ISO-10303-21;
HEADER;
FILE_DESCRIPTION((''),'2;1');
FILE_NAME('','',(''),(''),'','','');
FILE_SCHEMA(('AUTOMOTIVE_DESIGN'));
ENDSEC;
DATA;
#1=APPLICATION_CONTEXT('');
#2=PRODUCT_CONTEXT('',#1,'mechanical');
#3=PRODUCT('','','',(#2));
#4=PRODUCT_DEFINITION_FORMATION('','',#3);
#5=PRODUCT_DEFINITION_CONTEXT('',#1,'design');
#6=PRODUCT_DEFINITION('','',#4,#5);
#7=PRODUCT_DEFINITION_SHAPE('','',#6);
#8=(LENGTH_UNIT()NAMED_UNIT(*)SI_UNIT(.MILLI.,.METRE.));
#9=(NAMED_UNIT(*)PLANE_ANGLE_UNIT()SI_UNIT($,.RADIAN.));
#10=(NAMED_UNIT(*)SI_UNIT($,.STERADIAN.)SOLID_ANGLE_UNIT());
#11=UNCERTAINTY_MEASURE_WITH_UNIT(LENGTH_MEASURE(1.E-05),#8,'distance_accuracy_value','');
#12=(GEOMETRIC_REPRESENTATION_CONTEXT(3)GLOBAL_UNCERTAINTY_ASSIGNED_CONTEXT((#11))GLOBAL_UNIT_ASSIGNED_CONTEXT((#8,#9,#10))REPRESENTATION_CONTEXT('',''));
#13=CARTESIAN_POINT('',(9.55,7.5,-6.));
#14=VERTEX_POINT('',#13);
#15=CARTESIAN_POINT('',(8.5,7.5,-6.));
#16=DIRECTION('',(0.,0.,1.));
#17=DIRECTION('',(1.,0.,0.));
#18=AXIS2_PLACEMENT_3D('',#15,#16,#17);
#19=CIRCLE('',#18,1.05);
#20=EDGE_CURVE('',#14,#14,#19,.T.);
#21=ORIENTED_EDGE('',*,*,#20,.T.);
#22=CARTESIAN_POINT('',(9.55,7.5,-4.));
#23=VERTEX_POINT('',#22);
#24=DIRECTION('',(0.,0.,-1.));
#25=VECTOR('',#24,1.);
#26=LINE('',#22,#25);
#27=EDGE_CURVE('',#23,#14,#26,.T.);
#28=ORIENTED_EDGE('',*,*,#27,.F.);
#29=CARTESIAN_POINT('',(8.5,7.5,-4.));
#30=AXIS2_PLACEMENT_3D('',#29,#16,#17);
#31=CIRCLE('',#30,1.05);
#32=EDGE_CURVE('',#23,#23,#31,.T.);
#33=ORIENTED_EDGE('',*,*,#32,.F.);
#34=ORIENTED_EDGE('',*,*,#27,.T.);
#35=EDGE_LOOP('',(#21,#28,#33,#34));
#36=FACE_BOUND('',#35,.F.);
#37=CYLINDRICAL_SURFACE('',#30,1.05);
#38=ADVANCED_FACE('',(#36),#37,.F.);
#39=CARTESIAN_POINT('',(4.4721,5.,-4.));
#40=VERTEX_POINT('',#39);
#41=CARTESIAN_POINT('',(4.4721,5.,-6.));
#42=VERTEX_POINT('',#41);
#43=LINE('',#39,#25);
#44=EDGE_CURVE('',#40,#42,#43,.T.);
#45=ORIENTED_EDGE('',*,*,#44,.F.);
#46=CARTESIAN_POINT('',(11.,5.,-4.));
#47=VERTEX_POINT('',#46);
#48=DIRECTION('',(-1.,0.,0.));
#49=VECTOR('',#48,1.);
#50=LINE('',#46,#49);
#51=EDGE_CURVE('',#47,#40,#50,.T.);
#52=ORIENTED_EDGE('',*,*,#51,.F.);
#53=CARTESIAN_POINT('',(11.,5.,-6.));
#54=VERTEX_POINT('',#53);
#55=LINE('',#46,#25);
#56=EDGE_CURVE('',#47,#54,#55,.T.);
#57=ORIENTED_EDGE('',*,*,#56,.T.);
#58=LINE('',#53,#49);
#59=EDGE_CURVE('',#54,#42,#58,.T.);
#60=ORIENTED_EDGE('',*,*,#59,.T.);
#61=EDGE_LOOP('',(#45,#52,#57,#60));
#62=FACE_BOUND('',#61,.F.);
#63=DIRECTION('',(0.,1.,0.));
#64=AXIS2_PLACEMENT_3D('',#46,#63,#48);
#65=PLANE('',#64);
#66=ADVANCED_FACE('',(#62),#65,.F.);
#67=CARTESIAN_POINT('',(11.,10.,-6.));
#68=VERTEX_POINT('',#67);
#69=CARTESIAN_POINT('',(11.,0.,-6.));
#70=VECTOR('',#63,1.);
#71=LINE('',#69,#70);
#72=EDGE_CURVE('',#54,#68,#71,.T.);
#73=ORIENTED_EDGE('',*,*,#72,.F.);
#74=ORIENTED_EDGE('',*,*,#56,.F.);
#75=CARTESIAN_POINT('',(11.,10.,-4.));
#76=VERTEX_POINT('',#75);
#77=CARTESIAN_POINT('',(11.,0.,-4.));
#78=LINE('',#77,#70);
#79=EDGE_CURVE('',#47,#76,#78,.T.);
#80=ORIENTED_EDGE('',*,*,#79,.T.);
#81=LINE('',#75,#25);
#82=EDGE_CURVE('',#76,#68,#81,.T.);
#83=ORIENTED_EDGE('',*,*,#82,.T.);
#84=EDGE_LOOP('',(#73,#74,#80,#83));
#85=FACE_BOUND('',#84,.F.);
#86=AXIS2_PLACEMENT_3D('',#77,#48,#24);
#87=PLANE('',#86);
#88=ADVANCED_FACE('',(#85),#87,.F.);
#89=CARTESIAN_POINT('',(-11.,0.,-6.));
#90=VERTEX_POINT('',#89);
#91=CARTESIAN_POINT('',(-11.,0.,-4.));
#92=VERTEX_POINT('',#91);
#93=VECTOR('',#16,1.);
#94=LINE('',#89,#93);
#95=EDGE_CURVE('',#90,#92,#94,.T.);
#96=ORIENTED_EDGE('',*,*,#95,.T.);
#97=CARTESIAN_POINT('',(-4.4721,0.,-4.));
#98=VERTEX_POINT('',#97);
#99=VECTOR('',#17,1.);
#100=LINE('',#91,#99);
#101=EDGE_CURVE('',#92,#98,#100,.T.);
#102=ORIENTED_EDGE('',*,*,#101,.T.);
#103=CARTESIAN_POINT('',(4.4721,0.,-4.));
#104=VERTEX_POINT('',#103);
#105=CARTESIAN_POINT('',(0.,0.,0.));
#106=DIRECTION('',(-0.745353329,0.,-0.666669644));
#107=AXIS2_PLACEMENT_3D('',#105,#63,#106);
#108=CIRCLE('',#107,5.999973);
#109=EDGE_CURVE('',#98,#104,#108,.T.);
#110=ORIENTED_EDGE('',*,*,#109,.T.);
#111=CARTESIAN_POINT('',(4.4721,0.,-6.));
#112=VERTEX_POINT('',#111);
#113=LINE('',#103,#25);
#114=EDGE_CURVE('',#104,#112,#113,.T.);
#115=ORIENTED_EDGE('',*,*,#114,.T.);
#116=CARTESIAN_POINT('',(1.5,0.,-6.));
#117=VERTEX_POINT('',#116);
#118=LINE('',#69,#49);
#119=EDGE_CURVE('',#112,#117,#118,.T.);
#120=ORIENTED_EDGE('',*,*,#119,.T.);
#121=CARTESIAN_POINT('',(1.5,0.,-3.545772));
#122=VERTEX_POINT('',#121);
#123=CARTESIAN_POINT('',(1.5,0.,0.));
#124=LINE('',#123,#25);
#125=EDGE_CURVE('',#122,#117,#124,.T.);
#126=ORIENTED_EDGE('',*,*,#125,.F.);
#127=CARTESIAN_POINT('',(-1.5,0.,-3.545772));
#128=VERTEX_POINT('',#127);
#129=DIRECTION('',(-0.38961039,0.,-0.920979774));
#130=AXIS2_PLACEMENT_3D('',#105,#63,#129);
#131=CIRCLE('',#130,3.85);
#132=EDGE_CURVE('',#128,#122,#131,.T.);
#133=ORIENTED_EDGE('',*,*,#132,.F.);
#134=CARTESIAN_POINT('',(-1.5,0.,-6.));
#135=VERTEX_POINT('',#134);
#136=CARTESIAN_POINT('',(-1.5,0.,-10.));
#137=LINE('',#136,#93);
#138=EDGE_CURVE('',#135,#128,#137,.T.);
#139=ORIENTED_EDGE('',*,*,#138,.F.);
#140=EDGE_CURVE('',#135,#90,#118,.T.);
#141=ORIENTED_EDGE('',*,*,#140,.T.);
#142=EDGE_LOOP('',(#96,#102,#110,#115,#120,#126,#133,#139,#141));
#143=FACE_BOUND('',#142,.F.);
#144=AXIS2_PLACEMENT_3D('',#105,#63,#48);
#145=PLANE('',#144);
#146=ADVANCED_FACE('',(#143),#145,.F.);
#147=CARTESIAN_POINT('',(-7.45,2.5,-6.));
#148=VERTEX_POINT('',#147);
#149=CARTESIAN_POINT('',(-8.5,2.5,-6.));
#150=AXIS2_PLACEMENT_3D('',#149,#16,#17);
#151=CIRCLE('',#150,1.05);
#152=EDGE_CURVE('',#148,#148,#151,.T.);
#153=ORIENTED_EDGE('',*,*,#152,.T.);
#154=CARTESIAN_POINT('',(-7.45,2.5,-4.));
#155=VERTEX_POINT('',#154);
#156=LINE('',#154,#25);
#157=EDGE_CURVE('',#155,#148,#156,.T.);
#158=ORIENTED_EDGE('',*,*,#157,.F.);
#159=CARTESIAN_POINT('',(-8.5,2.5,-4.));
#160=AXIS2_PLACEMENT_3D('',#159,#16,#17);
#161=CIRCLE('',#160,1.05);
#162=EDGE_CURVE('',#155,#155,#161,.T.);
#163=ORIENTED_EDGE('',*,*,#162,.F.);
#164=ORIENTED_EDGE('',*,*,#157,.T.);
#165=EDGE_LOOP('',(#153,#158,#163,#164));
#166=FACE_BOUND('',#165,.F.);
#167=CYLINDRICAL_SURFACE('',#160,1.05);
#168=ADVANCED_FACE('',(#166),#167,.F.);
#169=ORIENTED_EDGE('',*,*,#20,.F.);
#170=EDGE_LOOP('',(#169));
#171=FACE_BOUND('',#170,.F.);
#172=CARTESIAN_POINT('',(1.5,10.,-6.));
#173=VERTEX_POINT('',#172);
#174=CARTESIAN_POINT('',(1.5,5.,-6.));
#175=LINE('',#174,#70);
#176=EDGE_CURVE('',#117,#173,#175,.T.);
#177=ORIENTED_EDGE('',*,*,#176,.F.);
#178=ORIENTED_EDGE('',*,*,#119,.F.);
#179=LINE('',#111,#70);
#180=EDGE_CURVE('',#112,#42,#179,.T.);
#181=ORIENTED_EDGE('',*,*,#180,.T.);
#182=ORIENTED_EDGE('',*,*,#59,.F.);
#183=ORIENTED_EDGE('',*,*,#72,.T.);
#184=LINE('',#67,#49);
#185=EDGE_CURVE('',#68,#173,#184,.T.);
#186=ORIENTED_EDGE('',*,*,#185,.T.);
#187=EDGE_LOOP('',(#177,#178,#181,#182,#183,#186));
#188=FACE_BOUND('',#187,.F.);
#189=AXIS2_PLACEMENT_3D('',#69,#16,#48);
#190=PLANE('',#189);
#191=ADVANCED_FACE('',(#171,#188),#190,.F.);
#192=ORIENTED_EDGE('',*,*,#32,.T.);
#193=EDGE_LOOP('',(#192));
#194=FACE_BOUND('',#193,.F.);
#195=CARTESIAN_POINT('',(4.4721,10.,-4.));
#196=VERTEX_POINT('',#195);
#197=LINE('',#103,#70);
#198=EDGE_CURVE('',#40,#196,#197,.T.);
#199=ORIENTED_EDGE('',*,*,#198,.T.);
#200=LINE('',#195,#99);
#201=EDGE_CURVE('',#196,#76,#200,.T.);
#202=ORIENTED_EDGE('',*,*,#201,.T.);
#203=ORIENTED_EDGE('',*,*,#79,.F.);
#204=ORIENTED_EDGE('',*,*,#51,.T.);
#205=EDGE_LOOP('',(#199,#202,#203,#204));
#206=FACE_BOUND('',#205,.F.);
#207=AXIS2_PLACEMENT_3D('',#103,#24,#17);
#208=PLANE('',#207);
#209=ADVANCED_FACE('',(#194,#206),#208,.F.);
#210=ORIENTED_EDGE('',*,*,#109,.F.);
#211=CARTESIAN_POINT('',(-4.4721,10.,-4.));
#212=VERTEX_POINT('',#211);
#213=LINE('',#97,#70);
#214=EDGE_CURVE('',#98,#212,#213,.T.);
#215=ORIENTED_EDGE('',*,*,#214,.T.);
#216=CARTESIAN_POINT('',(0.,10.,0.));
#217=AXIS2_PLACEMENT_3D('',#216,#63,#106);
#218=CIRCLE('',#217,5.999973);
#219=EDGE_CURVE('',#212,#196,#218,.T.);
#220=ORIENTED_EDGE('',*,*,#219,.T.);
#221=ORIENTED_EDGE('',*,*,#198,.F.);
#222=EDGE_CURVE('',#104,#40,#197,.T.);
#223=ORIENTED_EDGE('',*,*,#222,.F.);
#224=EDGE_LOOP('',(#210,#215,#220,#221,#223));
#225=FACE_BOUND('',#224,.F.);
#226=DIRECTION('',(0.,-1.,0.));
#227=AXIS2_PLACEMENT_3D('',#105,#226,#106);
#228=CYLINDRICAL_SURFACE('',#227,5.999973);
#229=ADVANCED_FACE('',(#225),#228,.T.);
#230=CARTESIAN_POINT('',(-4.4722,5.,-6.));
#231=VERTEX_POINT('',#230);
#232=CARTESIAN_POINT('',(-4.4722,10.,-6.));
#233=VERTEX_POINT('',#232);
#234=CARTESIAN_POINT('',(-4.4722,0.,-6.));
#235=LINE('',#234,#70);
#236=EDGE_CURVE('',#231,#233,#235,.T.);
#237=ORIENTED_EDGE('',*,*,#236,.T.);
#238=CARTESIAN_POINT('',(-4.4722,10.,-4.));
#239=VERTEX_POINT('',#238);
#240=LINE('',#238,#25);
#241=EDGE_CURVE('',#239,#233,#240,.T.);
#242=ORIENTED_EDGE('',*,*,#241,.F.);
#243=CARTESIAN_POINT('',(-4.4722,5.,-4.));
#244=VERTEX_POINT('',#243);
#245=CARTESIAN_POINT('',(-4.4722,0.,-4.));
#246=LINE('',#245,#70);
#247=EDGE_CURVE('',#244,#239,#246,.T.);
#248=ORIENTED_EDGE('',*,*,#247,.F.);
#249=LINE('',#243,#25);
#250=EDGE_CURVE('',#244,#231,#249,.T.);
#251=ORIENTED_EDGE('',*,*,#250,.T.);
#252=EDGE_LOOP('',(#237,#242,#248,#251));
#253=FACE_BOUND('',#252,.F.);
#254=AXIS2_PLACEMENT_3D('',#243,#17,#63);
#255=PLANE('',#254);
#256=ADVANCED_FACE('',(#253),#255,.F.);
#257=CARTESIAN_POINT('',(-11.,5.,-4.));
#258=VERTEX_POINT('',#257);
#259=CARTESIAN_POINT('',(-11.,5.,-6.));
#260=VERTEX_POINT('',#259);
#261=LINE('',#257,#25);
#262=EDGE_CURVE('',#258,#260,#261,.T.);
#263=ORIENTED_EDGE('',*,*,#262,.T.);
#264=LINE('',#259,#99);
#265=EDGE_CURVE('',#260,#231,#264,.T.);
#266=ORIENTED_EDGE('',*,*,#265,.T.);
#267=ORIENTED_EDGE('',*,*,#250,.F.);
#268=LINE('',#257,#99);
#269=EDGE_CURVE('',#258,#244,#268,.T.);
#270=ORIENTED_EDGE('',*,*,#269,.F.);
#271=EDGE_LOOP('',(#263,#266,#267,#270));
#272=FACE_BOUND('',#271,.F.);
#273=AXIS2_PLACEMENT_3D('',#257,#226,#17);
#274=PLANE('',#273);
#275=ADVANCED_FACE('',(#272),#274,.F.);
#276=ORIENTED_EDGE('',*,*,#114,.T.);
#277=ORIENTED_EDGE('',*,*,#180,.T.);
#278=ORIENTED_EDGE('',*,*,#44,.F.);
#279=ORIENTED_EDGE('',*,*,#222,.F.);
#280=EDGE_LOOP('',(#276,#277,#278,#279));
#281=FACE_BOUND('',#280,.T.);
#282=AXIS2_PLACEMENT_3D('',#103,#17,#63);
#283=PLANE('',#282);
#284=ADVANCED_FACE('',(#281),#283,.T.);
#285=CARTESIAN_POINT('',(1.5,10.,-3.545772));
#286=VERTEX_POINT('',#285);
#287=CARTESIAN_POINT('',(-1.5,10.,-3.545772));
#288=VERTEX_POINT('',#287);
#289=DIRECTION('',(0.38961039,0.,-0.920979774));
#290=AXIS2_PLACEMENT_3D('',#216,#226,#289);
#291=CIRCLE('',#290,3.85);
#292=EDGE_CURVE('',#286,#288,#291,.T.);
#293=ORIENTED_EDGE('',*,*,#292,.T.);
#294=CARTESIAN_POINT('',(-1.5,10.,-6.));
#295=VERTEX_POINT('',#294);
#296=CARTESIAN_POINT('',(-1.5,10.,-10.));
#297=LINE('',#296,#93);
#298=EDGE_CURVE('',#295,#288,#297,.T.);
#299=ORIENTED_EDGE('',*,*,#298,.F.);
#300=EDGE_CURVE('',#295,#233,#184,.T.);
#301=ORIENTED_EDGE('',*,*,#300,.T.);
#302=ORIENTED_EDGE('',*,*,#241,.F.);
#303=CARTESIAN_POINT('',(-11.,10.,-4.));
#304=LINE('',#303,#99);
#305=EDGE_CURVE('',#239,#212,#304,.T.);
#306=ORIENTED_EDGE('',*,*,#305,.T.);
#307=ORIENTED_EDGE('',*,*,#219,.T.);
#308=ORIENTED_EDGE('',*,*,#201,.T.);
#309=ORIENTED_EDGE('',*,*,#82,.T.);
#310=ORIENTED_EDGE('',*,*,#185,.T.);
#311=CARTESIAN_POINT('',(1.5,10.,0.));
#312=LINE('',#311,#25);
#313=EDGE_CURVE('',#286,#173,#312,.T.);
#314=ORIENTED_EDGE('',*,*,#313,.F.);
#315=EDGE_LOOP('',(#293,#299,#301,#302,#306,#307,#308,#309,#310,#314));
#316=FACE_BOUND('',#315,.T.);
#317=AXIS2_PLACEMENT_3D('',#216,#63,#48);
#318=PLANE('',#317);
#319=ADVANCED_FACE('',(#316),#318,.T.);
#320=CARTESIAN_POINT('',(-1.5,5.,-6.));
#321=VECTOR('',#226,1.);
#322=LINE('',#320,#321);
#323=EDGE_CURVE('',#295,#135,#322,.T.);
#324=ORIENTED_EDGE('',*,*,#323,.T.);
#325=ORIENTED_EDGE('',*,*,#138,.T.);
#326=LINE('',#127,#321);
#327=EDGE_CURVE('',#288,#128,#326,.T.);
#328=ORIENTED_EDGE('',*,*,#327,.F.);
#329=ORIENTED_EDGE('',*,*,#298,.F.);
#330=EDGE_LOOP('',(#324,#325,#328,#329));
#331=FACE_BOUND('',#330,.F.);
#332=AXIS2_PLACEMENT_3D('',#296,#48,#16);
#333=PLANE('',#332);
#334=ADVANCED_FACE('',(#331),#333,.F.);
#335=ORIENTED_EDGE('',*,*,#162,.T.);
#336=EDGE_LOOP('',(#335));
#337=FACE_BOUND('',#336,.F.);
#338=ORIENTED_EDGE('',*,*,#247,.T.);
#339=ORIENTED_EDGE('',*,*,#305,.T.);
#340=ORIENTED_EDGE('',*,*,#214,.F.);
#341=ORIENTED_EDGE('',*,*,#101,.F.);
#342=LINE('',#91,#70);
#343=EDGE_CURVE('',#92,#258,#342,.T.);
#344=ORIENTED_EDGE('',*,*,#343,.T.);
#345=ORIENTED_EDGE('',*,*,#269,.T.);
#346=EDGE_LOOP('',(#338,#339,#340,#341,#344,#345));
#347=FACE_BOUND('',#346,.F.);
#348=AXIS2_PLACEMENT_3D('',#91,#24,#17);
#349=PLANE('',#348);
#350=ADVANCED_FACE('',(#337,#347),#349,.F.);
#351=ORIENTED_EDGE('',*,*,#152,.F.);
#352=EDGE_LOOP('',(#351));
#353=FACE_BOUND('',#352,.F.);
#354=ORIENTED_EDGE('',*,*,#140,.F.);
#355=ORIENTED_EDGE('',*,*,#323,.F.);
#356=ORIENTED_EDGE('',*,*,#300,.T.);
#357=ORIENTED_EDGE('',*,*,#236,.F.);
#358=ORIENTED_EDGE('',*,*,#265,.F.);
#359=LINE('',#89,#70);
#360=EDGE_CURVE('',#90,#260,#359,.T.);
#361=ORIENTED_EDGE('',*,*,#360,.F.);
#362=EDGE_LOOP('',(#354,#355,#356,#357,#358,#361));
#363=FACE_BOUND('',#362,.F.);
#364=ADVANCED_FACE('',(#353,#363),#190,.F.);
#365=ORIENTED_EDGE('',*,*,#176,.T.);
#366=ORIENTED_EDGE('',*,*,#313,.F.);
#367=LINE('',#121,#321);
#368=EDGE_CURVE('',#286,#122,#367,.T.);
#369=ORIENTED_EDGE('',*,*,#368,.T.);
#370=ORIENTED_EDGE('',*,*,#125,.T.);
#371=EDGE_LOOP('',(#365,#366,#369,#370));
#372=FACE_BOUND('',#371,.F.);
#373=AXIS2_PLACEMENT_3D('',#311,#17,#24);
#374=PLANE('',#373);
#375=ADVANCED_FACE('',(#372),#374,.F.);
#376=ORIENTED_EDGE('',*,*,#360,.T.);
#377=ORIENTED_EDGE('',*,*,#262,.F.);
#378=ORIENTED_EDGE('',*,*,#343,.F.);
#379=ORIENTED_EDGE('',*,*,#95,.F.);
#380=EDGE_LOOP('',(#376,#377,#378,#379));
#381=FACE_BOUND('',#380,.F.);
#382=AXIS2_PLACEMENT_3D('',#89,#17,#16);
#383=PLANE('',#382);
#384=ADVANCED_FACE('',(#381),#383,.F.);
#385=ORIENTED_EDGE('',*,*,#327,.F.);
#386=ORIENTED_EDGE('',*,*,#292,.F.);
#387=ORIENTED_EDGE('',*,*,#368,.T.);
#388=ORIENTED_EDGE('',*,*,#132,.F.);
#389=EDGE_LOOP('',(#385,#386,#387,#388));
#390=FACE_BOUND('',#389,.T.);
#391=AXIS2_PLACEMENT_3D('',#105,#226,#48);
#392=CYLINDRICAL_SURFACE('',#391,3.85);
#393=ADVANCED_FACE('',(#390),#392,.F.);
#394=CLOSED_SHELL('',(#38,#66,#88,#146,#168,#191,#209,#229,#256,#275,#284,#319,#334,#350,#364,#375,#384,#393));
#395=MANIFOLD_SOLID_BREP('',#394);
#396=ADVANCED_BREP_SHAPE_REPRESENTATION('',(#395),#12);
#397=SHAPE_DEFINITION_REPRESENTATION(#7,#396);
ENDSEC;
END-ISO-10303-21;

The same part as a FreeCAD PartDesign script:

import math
import FreeCAD as App
import Part
import Sketcher

V = App.Vector
Q = App.Units.Quantity


def add_polygon(sketch, points):
    """Adds a closed chain of lines whose ends are joined by coincident constraints."""
    first, n = sketch.GeometryCount, len(points)
    for a, b in zip(points, points[1:] + points[:1]):
        sketch.addGeometry(Part.LineSegment(App.Vector(*a, 0), App.Vector(*b, 0)), False)
    for i in range(n):
        sketch.addConstraint(Sketcher.Constraint("Coincident", first + i, 2, first + (i + 1) % n, 1))

doc = App.newDocument("Part")
body = doc.addObject("PartDesign::Body", "Body")

sketch1 = body.newObject("Sketcher::SketchObject", "Sketch")
sketch1.AttachmentSupport = (doc.getObject("XZ_Plane"), [""])
sketch1.MapMode = "FlatFace"
sketch1.addGeometry(Part.LineSegment(V(-11, -6, 0), V(-11, -4, 0)), False)
sketch1.addGeometry(Part.LineSegment(V(-11, -4, 0), V(-4.5, -4, 0)), False)
sketch1.addGeometry(Part.ArcOfCircle(Part.Circle(V(0, 0, 0), V(0, 0, 1), 6), math.radians(-42), math.radians(222)), False)
sketch1.addGeometry(Part.LineSegment(V(4.5, -4, 0), V(11, -4, 0)), False)
sketch1.addGeometry(Part.LineSegment(V(11, -4, 0), V(11, -6, 0)), False)
sketch1.addGeometry(Part.LineSegment(V(11, -6, 0), V(-11, -6, 0)), False)
sketch1.addGeometry(Part.Circle(V(0, 0, 0), V(0, 0, 1), 3.9), False)
sketch1.addConstraint(Sketcher.Constraint("Coincident", 0, 2, 1, 1))
sketch1.addConstraint(Sketcher.Constraint("Coincident", 1, 2, 2, 2))
sketch1.addConstraint(Sketcher.Constraint("Coincident", 2, 1, 3, 1))
sketch1.addConstraint(Sketcher.Constraint("Coincident", 3, 2, 4, 1))
sketch1.addConstraint(Sketcher.Constraint("Coincident", 4, 2, 5, 1))
sketch1.addConstraint(Sketcher.Constraint("Coincident", 5, 2, 0, 1))
sketch1.addConstraint(Sketcher.Constraint("Vertical", 0))
sketch1.addConstraint(Sketcher.Constraint("Horizontal", 1))
sketch1.addConstraint(Sketcher.Constraint("Horizontal", 3))
sketch1.addConstraint(Sketcher.Constraint("Vertical", 4))
sketch1.addConstraint(Sketcher.Constraint("Horizontal", 5))
sketch1.addConstraint(Sketcher.Constraint("Coincident", 2, 3, -1, 1))
sketch1.addConstraint(Sketcher.Constraint("Coincident", 6, 3, -1, 1))
sketch1.addConstraint(Sketcher.Constraint("Symmetric", 0, 2, 3, 2, -2))
sketch1.addConstraint(Sketcher.Constraint("Radius", 2, Q("6 mm")))
sketch1.addConstraint(Sketcher.Constraint("Diameter", 6, Q("7.7 mm")))
sketch1.addConstraint(Sketcher.Constraint("DistanceX", 5, 2, 5, 1, Q("22 mm")))
sketch1.addConstraint(Sketcher.Constraint("DistanceY", 0, 1, 0, 2, Q("2 mm")))
sketch1.addConstraint(Sketcher.Constraint("DistanceY", 4, 2, -1, 1, Q("6 mm")))
pad1 = body.newObject("PartDesign::Pad", "Pad")
pad1.Profile = sketch1
pad1.Length = 10
pad1.Reversed = True

sketch2 = body.newObject("Sketcher::SketchObject", "Sketch001")
sketch2.AttachmentSupport = (doc.getObject("XY_Plane"), [""])
sketch2.MapMode = "FlatFace"
sketch2.AttachmentOffset = App.Placement(V(0, 0, -4), App.Rotation())
sketch2.addGeometry(Part.Circle(V(8.5, 7.5, 0), V(0, 0, 1), 1.1), False)
sketch2.addGeometry(Part.Circle(V(-8.5, 2.5, 0), V(0, 0, 1), 1.1), False)
sketch2.addConstraint(Sketcher.Constraint("Equal", 0, 1))
sketch2.addConstraint(Sketcher.Constraint("Diameter", 0, Q("2.1 mm")))
sketch2.addConstraint(Sketcher.Constraint("DistanceX", 1, 3, 0, 3, Q("17 mm")))
sketch2.addConstraint(Sketcher.Constraint("DistanceY", -1, 1, 1, 3, Q("2.5 mm")))
sketch2.addConstraint(Sketcher.Constraint("DistanceY", 1, 3, 0, 3, Q("5 mm")))
sketch2.addConstraint(Sketcher.Constraint("DistanceX", -1, 1, 0, 3, Q("8.5 mm")))
pocket1 = body.newObject("PartDesign::Pocket", "Pocket")
pocket1.Profile = sketch2
pocket1.Length = 10

sketch3 = body.newObject("Sketcher::SketchObject", "Sketch002")
sketch3.AttachmentSupport = (doc.getObject("XZ_Plane"), [""])
sketch3.MapMode = "FlatFace"
sketch3.AttachmentOffset = App.Placement(V(0, 0, -10), App.Rotation())
add_polygon(sketch3, [(-1.5, -10), (-1.5, 0), (1.5, 0), (1.5, -10)])
sketch3.addConstraint(Sketcher.Constraint("Vertical", 0))
sketch3.addConstraint(Sketcher.Constraint("Horizontal", 1))
sketch3.addConstraint(Sketcher.Constraint("Vertical", 2))
sketch3.addConstraint(Sketcher.Constraint("Horizontal", 3))
sketch3.addConstraint(Sketcher.Constraint("Symmetric", 0, 2, 1, 2, -1, 1))
sketch3.addConstraint(Sketcher.Constraint("DistanceX", 1, 1, 1, 2, Q("3 mm")))
sketch3.addConstraint(Sketcher.Constraint("DistanceY", 0, 1, 0, 2, Q("10 mm")))
pocket2 = body.newObject("PartDesign::Pocket", "Pocket001")
pocket2.Profile = sketch3
pocket2.Length = 10
pocket2.Reversed = True

sketch4 = body.newObject("Sketcher::SketchObject", "Sketch003")
sketch4.AttachmentSupport = (doc.getObject("XY_Plane"), [""])
sketch4.MapMode = "FlatFace"
sketch4.AttachmentOffset = App.Placement(V(0, 0, -4), App.Rotation())
add_polygon(sketch4, [(4, 5), (4, 0), (11, 0), (11, 5)])
sketch4.addConstraint(Sketcher.Constraint("Vertical", 0))
sketch4.addConstraint(Sketcher.Constraint("Horizontal", 1))
sketch4.addConstraint(Sketcher.Constraint("Vertical", 2))
sketch4.addConstraint(Sketcher.Constraint("Horizontal", 3))
sketch4.addConstraint(Sketcher.Constraint("PointOnObject", 0, 2, -1))
sketch4.addConstraint(Sketcher.Constraint("DistanceY", 0, 2, 0, 1, Q("5 mm")))
sketch4.addConstraint(Sketcher.Constraint("DistanceX", -1, 1, 1, 2, Q("11 mm")))
sketch4.addConstraint(Sketcher.Constraint("DistanceX", 1, 1, 1, 2, Q("6.528 mm")))
pocket3 = body.newObject("PartDesign::Pocket", "Pocket002")
pocket3.Profile = sketch4
pocket3.Length = 2

sketch5 = body.newObject("Sketcher::SketchObject", "Sketch004")
sketch5.AttachmentSupport = (doc.getObject("XY_Plane"), [""])
sketch5.MapMode = "FlatFace"
sketch5.AttachmentOffset = App.Placement(V(0, 0, -4), App.Rotation())
add_polygon(sketch5, [(-11, 10), (-11, 5), (-4, 5), (-4, 10)])
sketch5.addConstraint(Sketcher.Constraint("Vertical", 0))
sketch5.addConstraint(Sketcher.Constraint("Horizontal", 1))
sketch5.addConstraint(Sketcher.Constraint("Vertical", 2))
sketch5.addConstraint(Sketcher.Constraint("Horizontal", 3))
sketch5.addConstraint(Sketcher.Constraint("DistanceY", 0, 2, 0, 1, Q("5 mm")))
sketch5.addConstraint(Sketcher.Constraint("DistanceX", 0, 2, -1, 1, Q("11 mm")))
sketch5.addConstraint(Sketcher.Constraint("DistanceY", -1, 1, 0, 2, Q("5 mm")))
sketch5.addConstraint(Sketcher.Constraint("DistanceX", 1, 1, 1, 2, Q("6.5278 mm")))
pocket4 = body.newObject("PartDesign::Pocket", "Pocket003")
pocket4.Profile = sketch5
pocket4.Length = 2

doc.recompute()
